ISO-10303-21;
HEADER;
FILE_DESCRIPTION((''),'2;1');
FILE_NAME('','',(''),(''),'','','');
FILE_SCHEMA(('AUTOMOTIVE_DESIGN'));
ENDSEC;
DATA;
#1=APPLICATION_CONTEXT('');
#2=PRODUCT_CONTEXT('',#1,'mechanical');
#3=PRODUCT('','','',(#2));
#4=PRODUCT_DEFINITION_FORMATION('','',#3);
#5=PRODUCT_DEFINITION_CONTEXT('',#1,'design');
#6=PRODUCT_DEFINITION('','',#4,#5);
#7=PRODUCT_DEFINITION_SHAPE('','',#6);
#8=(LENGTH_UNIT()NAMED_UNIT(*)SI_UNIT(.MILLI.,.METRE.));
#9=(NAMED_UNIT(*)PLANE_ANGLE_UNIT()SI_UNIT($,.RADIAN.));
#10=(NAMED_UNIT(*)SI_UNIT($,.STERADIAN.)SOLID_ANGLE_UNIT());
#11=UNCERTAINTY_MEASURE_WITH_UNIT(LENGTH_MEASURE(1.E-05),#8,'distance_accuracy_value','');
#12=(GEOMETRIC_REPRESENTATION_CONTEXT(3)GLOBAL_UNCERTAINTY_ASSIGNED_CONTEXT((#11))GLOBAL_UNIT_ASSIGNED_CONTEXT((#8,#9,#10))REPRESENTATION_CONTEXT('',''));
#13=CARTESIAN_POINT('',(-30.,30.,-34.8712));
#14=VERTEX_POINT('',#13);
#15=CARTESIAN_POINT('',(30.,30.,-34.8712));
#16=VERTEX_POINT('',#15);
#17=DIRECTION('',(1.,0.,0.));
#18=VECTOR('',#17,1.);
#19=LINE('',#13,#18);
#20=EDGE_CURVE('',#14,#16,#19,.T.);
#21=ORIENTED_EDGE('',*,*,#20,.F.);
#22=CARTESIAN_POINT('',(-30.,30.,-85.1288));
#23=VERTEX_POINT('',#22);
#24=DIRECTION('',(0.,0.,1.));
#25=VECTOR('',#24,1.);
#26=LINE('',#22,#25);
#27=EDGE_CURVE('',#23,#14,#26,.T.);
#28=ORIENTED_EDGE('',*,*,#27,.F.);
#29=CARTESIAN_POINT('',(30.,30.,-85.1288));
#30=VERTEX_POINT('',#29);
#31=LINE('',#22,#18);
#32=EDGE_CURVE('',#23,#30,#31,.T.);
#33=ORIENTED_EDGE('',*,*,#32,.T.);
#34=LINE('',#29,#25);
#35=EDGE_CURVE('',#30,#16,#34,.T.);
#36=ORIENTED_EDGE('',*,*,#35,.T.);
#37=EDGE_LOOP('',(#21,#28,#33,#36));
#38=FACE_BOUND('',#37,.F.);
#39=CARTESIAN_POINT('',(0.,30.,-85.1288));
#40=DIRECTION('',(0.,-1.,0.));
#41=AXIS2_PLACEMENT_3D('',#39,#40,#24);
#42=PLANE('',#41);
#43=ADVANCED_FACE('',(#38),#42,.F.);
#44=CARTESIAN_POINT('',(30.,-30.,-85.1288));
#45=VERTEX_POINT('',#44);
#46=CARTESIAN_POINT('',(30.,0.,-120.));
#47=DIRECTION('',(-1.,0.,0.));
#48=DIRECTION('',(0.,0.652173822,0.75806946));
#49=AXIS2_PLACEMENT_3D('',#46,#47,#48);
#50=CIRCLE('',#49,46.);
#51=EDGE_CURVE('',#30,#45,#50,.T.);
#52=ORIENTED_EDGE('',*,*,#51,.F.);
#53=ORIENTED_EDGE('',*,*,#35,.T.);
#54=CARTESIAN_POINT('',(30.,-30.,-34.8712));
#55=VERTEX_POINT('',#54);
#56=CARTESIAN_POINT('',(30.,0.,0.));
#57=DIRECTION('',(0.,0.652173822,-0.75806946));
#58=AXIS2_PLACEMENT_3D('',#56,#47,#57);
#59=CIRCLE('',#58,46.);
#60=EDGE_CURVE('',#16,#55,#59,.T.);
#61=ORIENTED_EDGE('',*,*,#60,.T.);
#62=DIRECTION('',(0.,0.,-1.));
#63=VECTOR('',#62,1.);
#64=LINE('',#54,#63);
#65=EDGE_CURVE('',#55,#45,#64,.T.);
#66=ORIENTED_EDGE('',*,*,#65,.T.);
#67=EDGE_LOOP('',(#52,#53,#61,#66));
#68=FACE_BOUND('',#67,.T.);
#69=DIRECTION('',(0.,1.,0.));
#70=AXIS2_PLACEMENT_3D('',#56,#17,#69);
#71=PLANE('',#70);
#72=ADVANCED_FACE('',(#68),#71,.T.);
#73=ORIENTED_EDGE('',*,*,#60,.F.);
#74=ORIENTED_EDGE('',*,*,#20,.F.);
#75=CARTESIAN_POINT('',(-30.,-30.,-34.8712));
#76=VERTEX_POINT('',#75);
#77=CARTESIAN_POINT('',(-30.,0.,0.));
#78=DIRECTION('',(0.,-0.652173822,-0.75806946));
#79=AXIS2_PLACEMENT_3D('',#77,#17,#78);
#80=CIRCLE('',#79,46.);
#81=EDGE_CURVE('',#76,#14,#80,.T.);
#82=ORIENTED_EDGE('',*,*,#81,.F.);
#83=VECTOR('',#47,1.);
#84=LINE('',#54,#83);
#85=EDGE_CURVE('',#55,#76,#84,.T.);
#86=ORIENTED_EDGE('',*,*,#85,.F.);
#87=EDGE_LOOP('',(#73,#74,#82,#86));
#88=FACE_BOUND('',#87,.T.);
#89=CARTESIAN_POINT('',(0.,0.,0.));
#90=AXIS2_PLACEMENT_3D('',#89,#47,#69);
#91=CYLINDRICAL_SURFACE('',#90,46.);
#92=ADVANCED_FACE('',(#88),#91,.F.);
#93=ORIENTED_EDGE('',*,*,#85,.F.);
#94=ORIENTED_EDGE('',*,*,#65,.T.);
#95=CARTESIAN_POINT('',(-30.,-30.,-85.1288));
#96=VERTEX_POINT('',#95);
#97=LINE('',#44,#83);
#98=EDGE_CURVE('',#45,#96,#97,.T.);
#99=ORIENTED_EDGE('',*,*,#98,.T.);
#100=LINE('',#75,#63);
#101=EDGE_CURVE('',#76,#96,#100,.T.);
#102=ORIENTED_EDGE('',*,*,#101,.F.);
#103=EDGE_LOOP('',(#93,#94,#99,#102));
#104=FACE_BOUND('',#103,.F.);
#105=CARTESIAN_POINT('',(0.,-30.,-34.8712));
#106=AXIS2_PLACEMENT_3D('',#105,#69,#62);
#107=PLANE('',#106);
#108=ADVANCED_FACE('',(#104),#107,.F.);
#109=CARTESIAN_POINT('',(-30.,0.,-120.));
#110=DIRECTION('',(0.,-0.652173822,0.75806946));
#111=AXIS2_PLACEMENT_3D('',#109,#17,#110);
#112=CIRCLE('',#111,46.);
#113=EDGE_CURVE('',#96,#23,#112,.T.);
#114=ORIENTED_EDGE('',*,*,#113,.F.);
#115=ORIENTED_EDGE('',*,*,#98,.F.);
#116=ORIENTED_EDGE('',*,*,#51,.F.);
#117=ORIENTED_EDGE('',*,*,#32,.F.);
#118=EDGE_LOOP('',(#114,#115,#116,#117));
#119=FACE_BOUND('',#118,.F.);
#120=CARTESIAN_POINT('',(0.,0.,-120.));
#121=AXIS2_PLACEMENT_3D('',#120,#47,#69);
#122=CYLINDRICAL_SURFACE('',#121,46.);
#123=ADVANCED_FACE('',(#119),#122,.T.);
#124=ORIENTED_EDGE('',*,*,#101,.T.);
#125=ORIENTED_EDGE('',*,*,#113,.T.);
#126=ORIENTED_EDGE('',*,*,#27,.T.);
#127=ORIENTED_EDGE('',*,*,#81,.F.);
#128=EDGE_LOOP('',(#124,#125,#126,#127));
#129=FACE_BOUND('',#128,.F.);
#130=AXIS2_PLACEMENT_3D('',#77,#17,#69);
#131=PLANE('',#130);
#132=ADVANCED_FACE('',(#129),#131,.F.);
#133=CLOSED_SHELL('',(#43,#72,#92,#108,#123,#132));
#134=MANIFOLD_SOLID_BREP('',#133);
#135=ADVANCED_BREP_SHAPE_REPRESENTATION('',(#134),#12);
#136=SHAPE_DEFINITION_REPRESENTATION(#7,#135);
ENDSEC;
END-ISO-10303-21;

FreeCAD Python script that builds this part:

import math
import FreeCAD as App
import Part
import Sketcher
Q = App.Units.Quantity

doc = App.newDocument("Part")
params = doc.addObject("Spreadsheet::Sheet", "Params")
for row, (alias, value) in enumerate([
    ("sketch1_radius", "46 mm"),
    ("pad1_length", "60 mm"),
], start=1):
    params.set(f"A{row}", alias)
    params.set(f"B{row}", "=" + value)
    params.setAlias(f"B{row}", alias)

body = doc.addObject("PartDesign::Body", "Body")

sketch1 = doc.addObject("Sketcher::SketchObject", "Sketch")
body.addObject(sketch1)
sketch1.AttachmentSupport = (doc.YZ_Plane, [""])
sketch1.MapMode = "FlatFace"
sketch1.addGeometry([
    Part.ArcOfCircle(Part.Circle(App.Vector(0, -120, 0), App.Vector(0, 0, 1), 46), math.radians(131), math.radians(409)),
    Part.LineSegment(App.Vector(30, -85, 0), App.Vector(30, -35, 0)),
    Part.ArcOfCircle(Part.Circle(App.Vector(0, 0, 0), App.Vector(0, 0, 1), 46), math.radians(-131), math.radians(-49)),
    Part.LineSegment(App.Vector(-30, -35, 0), App.Vector(-30, -85, 0)),
], False)
sketch1.addConstraint([
    Sketcher.Constraint("Coincident", 0, 2, 1, 1),
    Sketcher.Constraint("Coincident", 1, 2, 2, 2),
    Sketcher.Constraint("Coincident", 2, 1, 3, 1),
    Sketcher.Constraint("Coincident", 3, 2, 0, 1),
    Sketcher.Constraint("Vertical", 1),
    Sketcher.Constraint("Vertical", 3),
    Sketcher.Constraint("Coincident", 2, 3, -1, 1),
    Sketcher.Constraint("Equal", 0, 2),
    Sketcher.Constraint("Symmetric", 0, 2, 3, 2, -2),
    Sketcher.Constraint("Radius", 0, Q("46 mm")),
    Sketcher.Constraint("DistanceY", 0, 3, -1, 1, Q("120 mm")),
    Sketcher.Constraint("DistanceX", 2, 1, 1, 2, Q("60 mm")),
])
sketch1.setExpression("Constraints[9]", "Params.sketch1_radius")
pad1 = doc.addObject("PartDesign::Pad", "Pad")
body.addObject(pad1)
pad1.Profile = sketch1
pad1.setExpression("Length", "Params.pad1_length")
pad1.Midplane = True

doc.recompute()
